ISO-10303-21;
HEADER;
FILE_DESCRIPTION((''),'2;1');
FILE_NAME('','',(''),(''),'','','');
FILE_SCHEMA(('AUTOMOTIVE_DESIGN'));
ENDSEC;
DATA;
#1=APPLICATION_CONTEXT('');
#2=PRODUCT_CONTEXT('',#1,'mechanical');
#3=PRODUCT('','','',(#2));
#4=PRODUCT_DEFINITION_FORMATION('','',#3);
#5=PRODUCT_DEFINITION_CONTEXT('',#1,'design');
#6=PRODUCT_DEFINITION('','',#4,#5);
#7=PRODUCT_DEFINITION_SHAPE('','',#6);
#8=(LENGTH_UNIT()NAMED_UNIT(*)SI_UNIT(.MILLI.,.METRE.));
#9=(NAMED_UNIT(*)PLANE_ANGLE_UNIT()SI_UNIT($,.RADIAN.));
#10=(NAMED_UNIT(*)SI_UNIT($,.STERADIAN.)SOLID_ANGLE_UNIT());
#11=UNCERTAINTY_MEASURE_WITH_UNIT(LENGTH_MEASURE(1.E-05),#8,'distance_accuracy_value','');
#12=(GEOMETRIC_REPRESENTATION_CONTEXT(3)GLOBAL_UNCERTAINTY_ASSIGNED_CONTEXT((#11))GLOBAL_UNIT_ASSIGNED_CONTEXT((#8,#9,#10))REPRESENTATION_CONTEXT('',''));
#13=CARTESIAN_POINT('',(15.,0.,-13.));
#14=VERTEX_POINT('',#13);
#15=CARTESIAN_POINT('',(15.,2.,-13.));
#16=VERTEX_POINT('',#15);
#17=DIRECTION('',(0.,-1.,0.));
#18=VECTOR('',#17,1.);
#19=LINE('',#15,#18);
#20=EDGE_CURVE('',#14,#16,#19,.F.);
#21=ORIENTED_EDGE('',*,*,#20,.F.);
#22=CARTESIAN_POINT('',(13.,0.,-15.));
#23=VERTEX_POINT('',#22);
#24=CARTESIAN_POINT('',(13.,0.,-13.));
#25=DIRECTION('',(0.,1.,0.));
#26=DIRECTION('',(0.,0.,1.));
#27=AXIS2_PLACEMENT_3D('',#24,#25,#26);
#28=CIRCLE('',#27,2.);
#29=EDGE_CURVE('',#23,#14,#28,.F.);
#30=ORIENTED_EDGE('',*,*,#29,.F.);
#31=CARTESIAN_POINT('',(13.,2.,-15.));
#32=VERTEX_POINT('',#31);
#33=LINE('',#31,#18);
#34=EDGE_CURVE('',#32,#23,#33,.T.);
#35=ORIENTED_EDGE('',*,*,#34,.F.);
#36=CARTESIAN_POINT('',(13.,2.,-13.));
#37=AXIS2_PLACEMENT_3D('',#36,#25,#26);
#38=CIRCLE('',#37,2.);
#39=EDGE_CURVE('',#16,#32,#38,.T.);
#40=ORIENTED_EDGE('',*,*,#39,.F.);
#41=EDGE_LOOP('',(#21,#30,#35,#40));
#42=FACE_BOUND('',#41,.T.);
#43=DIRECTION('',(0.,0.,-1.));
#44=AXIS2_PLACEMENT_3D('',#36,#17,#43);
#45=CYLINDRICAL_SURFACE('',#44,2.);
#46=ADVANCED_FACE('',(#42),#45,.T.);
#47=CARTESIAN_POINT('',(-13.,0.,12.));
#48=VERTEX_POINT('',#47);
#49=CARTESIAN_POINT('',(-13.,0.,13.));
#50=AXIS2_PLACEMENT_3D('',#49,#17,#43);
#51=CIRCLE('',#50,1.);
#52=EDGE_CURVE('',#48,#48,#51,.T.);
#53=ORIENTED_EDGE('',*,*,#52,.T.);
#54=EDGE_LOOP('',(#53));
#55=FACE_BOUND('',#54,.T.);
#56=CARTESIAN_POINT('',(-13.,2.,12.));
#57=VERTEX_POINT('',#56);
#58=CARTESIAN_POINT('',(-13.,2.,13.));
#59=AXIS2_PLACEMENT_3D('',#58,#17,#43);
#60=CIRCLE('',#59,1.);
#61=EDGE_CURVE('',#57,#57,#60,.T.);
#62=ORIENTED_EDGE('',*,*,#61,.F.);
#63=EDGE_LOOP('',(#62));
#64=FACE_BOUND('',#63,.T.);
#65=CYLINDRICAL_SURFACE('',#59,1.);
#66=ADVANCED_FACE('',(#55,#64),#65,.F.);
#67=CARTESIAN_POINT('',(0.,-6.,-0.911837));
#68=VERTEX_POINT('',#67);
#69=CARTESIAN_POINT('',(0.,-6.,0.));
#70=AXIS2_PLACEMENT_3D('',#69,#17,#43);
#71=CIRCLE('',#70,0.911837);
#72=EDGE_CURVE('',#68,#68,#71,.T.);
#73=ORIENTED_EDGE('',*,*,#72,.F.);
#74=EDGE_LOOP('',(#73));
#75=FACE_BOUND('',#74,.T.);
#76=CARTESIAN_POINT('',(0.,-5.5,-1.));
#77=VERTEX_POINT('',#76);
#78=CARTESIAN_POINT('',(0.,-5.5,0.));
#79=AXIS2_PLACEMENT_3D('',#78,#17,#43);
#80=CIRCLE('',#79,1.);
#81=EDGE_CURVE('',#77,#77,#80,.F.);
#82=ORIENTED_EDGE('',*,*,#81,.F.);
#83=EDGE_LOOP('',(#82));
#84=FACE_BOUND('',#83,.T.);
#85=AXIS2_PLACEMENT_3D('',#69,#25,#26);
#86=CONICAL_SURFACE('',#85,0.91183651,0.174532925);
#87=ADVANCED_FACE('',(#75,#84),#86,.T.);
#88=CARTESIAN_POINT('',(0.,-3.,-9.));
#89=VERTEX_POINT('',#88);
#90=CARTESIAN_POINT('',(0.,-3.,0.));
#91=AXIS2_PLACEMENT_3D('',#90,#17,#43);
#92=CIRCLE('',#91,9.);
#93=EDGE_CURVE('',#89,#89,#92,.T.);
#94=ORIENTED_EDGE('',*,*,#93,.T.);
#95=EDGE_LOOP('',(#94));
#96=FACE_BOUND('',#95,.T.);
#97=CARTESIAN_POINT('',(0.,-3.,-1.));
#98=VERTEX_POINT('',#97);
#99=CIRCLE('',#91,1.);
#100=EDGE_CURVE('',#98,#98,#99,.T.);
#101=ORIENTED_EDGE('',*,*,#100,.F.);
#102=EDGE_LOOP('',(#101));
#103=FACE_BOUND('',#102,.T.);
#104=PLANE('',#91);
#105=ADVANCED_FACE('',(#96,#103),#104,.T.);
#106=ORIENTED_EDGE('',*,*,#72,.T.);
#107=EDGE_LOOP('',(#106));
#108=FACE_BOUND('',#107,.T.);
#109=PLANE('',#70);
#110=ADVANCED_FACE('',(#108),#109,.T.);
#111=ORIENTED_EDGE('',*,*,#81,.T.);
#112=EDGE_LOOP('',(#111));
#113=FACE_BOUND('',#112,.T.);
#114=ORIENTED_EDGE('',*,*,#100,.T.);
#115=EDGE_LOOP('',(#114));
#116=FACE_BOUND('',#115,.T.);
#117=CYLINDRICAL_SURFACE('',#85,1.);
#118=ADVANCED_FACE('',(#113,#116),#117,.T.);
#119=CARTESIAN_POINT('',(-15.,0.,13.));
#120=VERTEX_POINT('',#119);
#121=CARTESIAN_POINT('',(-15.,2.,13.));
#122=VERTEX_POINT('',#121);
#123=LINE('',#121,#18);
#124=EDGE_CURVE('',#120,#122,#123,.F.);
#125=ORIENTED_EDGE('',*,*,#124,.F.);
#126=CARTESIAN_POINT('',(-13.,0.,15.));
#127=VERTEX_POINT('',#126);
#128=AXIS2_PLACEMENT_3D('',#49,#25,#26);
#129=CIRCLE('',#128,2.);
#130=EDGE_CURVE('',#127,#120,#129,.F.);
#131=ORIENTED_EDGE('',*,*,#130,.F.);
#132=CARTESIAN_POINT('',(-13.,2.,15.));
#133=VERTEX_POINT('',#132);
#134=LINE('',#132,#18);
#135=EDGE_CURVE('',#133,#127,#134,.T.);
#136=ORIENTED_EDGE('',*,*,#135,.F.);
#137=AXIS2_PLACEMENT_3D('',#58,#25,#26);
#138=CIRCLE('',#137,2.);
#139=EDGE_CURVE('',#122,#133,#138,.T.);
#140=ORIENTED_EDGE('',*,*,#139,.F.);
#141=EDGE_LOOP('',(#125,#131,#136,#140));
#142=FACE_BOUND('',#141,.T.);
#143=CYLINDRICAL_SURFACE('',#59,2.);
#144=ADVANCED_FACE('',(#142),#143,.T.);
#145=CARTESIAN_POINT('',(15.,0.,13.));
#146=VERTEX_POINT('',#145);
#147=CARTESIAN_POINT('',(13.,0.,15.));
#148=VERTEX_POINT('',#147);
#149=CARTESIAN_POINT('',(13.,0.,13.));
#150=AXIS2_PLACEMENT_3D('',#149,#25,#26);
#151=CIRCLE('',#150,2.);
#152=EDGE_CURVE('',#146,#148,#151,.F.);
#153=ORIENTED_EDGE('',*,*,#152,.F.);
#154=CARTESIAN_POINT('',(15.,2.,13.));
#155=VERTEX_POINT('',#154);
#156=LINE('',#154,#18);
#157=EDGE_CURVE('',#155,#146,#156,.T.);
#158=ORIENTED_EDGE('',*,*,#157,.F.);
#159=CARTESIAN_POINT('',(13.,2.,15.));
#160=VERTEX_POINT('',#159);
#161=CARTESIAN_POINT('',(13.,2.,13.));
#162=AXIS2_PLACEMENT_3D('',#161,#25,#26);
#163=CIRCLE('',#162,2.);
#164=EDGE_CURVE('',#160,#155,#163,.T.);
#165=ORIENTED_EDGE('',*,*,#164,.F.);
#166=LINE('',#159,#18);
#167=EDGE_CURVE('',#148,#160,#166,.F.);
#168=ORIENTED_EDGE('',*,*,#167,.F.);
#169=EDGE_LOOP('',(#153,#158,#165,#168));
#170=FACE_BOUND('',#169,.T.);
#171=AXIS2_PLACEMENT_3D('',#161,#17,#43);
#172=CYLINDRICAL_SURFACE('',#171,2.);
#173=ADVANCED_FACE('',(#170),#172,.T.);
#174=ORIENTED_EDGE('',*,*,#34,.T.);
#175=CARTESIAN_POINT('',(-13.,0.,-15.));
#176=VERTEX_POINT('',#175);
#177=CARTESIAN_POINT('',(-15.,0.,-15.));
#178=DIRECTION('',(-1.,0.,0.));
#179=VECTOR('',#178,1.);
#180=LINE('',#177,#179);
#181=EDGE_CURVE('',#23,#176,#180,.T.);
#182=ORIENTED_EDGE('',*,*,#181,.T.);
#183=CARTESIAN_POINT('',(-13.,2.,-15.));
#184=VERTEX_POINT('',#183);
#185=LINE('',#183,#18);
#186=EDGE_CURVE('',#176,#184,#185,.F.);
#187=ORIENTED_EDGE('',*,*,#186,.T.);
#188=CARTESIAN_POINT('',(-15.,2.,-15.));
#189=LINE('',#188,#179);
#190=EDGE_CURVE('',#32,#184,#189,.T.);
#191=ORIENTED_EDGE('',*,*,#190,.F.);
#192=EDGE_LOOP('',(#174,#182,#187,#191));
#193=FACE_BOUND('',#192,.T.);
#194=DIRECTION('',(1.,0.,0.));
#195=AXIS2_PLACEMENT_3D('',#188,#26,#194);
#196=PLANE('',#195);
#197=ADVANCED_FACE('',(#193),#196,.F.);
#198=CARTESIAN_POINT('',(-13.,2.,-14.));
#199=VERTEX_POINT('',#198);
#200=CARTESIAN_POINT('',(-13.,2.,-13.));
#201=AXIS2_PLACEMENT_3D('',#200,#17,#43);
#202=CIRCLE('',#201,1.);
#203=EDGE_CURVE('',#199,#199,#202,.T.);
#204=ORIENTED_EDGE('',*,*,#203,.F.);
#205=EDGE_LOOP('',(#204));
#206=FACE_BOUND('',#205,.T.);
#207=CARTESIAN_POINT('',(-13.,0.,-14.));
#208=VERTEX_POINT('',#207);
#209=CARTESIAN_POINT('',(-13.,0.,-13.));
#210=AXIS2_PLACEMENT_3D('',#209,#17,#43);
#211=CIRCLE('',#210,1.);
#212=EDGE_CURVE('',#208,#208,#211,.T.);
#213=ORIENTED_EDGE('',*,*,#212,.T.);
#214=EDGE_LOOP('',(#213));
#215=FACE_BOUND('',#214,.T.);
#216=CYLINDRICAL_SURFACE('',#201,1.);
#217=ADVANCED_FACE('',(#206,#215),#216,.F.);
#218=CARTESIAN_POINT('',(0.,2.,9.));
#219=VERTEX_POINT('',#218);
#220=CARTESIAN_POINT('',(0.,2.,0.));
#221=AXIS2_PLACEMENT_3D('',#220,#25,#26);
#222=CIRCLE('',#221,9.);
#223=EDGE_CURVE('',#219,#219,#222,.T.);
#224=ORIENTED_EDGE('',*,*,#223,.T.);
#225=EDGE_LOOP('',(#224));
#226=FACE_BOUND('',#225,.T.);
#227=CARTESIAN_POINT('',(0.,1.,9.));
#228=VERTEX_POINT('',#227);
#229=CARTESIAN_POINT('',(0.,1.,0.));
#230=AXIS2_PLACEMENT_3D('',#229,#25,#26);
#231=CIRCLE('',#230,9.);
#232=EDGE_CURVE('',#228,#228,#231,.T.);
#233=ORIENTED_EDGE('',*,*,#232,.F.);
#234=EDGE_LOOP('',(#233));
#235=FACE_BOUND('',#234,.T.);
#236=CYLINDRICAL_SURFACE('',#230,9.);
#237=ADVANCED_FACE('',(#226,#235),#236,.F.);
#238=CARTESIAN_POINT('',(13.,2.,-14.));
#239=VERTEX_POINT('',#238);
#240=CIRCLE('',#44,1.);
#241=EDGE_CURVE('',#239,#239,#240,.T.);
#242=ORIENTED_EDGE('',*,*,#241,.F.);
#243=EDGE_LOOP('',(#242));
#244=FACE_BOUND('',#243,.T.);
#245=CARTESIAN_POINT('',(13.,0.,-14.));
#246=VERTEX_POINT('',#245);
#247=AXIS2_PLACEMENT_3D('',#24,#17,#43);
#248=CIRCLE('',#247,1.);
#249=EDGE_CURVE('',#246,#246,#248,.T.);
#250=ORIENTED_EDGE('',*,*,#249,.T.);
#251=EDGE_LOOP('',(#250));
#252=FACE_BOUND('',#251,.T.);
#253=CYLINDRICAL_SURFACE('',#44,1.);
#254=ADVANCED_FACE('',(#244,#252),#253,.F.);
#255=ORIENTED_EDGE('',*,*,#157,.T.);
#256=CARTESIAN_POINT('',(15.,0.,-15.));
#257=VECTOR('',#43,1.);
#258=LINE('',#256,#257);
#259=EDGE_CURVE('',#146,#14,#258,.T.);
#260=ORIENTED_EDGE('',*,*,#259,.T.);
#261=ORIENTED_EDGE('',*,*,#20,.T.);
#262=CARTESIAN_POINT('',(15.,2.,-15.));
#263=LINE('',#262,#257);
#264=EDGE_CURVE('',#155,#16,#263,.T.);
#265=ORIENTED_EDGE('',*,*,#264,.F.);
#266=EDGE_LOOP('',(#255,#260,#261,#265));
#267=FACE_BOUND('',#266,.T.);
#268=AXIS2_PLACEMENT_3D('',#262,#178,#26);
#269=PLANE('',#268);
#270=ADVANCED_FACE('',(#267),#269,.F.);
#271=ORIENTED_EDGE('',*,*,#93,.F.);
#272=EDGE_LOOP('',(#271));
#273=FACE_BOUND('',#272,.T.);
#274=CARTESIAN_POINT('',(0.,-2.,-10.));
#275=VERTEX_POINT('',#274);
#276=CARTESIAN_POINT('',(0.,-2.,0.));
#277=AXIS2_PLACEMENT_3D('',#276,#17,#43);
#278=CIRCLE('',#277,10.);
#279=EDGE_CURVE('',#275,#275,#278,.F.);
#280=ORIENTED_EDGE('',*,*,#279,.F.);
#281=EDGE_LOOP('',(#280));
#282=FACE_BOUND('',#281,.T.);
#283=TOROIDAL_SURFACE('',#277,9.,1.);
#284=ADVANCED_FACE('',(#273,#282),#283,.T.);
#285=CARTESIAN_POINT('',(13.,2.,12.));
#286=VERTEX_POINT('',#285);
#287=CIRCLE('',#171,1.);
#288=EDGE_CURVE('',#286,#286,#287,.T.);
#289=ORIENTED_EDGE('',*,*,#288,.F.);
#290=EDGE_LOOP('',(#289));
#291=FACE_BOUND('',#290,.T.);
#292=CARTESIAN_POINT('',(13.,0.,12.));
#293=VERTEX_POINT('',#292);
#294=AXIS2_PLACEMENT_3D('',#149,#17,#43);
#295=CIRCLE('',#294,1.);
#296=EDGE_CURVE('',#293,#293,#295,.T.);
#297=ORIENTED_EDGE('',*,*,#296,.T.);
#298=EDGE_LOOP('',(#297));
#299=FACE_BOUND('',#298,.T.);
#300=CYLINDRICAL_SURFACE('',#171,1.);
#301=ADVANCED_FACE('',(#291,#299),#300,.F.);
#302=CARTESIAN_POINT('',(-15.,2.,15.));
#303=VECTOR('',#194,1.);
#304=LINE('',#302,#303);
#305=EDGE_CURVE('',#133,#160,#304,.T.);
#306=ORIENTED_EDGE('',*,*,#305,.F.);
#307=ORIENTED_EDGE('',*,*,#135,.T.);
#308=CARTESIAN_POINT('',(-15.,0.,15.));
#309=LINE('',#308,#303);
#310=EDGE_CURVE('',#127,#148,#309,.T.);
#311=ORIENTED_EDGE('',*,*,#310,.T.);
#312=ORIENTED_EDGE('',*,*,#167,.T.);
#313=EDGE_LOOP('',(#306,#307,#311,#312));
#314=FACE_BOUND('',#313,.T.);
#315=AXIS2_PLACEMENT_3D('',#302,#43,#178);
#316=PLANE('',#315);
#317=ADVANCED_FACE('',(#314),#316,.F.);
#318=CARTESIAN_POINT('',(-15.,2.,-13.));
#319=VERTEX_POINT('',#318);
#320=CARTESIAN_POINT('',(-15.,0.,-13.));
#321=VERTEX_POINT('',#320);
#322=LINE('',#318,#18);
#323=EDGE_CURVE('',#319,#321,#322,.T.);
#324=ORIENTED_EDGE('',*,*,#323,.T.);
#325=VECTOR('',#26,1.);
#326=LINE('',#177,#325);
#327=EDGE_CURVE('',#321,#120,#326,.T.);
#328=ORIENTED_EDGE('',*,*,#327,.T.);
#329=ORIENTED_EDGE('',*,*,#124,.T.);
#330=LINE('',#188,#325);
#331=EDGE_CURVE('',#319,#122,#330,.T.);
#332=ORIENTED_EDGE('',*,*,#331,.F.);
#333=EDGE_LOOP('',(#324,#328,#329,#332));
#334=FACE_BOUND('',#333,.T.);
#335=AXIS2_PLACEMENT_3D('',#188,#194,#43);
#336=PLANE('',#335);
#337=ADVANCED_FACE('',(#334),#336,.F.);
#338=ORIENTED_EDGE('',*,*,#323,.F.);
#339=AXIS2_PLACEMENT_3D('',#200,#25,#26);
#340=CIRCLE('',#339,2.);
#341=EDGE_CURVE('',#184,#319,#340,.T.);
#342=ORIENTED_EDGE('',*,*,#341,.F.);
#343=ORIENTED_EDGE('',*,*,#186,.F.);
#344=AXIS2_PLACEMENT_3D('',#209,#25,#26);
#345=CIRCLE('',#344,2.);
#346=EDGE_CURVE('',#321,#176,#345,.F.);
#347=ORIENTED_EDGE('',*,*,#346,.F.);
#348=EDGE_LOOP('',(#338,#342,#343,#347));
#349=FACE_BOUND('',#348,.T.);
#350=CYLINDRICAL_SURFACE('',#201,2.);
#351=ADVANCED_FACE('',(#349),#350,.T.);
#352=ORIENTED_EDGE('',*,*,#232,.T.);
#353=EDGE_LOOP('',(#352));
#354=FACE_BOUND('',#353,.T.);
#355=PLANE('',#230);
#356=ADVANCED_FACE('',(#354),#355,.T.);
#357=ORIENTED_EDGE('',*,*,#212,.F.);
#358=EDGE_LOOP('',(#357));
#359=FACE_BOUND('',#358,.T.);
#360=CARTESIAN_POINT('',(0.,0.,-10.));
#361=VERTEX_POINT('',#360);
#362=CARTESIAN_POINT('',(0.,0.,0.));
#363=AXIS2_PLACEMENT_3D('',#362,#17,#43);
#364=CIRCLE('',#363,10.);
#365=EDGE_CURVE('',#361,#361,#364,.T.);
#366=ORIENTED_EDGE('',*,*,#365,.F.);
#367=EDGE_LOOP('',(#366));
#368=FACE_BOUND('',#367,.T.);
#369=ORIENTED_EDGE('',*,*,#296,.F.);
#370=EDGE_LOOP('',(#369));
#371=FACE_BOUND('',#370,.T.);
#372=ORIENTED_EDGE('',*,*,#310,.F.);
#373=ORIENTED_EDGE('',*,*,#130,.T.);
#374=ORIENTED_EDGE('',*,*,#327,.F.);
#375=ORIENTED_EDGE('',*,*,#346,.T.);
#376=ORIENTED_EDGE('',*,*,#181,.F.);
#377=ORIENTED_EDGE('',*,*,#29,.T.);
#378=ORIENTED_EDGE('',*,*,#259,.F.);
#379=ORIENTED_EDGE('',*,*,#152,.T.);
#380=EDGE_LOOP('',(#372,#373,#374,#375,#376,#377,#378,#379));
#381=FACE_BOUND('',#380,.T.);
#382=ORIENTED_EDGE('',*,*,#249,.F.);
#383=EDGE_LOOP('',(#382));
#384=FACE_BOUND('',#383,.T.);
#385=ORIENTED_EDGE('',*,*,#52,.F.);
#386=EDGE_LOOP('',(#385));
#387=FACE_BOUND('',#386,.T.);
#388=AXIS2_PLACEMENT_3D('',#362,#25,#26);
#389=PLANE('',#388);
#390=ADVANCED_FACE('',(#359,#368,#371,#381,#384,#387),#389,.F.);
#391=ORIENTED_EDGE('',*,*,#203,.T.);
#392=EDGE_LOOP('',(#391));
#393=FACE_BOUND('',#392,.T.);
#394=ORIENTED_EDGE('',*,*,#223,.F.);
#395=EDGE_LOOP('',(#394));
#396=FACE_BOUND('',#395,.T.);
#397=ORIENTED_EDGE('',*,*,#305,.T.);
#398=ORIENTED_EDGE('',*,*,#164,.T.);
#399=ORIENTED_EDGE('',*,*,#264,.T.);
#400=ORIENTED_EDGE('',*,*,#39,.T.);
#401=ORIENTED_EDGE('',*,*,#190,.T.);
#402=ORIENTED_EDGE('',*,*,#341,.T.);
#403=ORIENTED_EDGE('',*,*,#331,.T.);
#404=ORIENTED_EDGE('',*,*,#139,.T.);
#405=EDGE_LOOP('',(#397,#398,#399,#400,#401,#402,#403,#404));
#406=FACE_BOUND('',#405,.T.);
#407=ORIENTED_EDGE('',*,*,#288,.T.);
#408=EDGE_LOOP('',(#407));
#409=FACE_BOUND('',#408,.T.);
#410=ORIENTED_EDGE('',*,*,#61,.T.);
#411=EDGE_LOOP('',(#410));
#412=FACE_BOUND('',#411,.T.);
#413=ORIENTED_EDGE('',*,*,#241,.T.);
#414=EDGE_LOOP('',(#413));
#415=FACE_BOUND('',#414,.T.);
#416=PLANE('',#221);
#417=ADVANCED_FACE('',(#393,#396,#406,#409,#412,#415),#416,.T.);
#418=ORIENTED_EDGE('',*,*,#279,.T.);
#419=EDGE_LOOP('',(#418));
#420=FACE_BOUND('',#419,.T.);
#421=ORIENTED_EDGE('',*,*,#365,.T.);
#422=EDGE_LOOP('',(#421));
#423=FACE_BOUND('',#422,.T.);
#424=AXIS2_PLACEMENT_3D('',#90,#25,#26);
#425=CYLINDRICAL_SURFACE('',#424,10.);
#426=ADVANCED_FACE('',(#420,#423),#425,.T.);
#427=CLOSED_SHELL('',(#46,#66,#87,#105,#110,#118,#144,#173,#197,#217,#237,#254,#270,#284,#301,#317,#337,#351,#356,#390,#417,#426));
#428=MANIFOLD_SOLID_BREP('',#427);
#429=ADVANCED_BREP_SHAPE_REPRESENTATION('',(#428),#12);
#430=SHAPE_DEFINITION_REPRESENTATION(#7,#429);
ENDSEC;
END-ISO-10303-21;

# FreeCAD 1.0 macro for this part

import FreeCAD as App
import Part
import Sketcher

V = App.Vector


def edges_at(feature, points):
    """Names of the edges that pass closest to the given points."""
    edges = feature.Shape.Edges
    near = lambda p: min(range(len(edges)), key=lambda i: edges[i].distToShape(Part.Vertex(*p))[0])
    return sorted({f"Edge{near(p) + 1}" for p in points})


def add_polygon(sketch, points):
    """Adds a closed chain of lines whose ends are joined by coincident constraints."""
    first, n = sketch.GeometryCount, len(points)
    for a, b in zip(points, points[1:] + points[:1]):
        sketch.addGeometry(Part.LineSegment(App.Vector(*a, 0), App.Vector(*b, 0)), False)
    for i in range(n):
        sketch.addConstraint(Sketcher.Constraint("Coincident", first + i, 2, first + (i + 1) % n, 1))

doc = App.newDocument("Part")
body = doc.addObject("PartDesign::Body", "Body")

# Sketch on XZ plane
sketch1 = body.newObject("Sketcher::SketchObject", "Sketch")
sketch1.AttachmentSupport = (doc.getObject("XZ_Plane"), [""])
sketch1.MapMode = "FlatFace"
add_polygon(sketch1, [(-15, -15), (-15, 15), (15, 15), (15, -15)])  # lines 0-3
sketch1.addConstraint([
    Sketcher.Constraint("Vertical", 0),
    Sketcher.Constraint("Horizontal", 1),
    Sketcher.Constraint("Vertical", 2),
    Sketcher.Constraint("Horizontal", 3),
    Sketcher.Constraint("Symmetric", 0, 2, 2, 2, -1, 1),
    Sketcher.Constraint("Equal", 3, 0),
    Sketcher.Constraint("DistanceX", 1, 1, 1, 2, 30.0),
])
pad1 = body.newObject("PartDesign::Pad", "Pad")
pad1.Profile = sketch1
pad1.Length = 2
pad1.Reversed = True

# Sketch on XZ plane
sketch2 = body.newObject("Sketcher::SketchObject", "Sketch001")
sketch2.AttachmentSupport = (doc.getObject("XZ_Plane"), [""])
sketch2.MapMode = "FlatFace"
sketch2.AttachmentOffset = App.Placement(V(0, 0, -2), App.Rotation())
sketch2.addGeometry(Part.Circle(V(0, 0, 0), V(0, 0, 1), 9), False)
sketch2.addConstraint([
    Sketcher.Constraint("Coincident", 0, 3, -1, 1),
    Sketcher.Constraint("Diameter", 0, 18.0),
])
pocket1 = body.newObject("PartDesign::Pocket", "Pocket")
pocket1.Profile = sketch2
pocket1.Length = 1
pocket1.Reversed = True

# Sketch on XZ plane
sketch3 = body.newObject("Sketcher::SketchObject", "Sketch002")
sketch3.AttachmentSupport = (doc.getObject("XZ_Plane"), [""])
sketch3.MapMode = "FlatFace"
sketch3.addGeometry(Part.Circle(V(0, 0, 0), V(0, 0, 1), 10), False)
sketch3.addConstraint([
    Sketcher.Constraint("Coincident", 0, 3, -1, 1),
    Sketcher.Constraint("Diameter", 0, 20.0),
])
pad2 = body.newObject("PartDesign::Pad", "Pad001")
pad2.Profile = sketch3
pad2.Length = 3

# Sketch on XZ plane
sketch4 = body.newObject("Sketcher::SketchObject", "Sketch003")
sketch4.AttachmentSupport = (doc.getObject("XZ_Plane"), [""])
sketch4.MapMode = "FlatFace"
sketch4.AttachmentOffset = App.Placement(V(0, 0, 3), App.Rotation())
sketch4.addGeometry(Part.Circle(V(0, 0, 0), V(0, 0, 1), 1), False)
sketch4.addConstraint([
    Sketcher.Constraint("Coincident", 0, 3, -1, 1),
    Sketcher.Constraint("Diameter", 0, 2.0),
])
pad3 = body.newObject("PartDesign::Pad", "Pad002")
pad3.Profile = sketch4
pad3.Length = 3
doc.recompute()

fillet = body.newObject("PartDesign::Fillet", "Fillet")
fillet.Base = (pad3, edges_at(pad3, [(-10, -3, 0)]))
fillet.Radius = 1
doc.recompute()

chamfer = body.newObject("PartDesign::Chamfer", "Chamfer")
chamfer.Base = (fillet, edges_at(fillet, [(-1, -6, 0)]))
chamfer.ChamferType = "Two distances"
chamfer.Size = 0.5
chamfer.Size2 = 0.088163

# Sketch on XZ plane
sketch5 = body.newObject("Sketcher::SketchObject", "Sketch004")
sketch5.AttachmentSupport = (doc.getObject("XZ_Plane"), [""])
sketch5.MapMode = "FlatFace"
sketch5.addGeometry([
    Part.Circle(V(-13, 13, 0), V(0, 0, 1), 1),
    Part.Circle(V(13, 13, 0), V(0, 0, 1), 1),
    Part.Circle(V(13, -13, 0), V(0, 0, 1), 1),
    Part.Circle(V(-13, -13, 0), V(0, 0, 1), 1),
], False)
sketch5.addConstraint([
    Sketcher.Constraint("Equal", 0, 1),
    Sketcher.Constraint("Equal", 1, 2),
    Sketcher.Constraint("Equal", 2, 3),
    Sketcher.Constraint("Symmetric", 0, 3, 2, 3, -1, 1),
    Sketcher.Constraint("Symmetric", 1, 3, 3, 3, -1, 1),
    Sketcher.Constraint("Symmetric", 0, 3, 1, 3, -2),
    Sketcher.Constraint("Diameter", 0, 2.0),
    Sketcher.Constraint("DistanceX", 0, 3, -1, 1, 13.0),
    Sketcher.Constraint("DistanceY", -1, 1, 0, 3, 13.0),
])
pocket2 = body.newObject("PartDesign::Pocket", "Pocket001")
pocket2.Profile = sketch5
pocket2.Type = "ThroughAll"
doc.recompute()

fillet2 = body.newObject("PartDesign::Fillet", "Fillet001")
fillet2.Base = (pocket2, edges_at(pocket2, [
    (15, 1, 15),
    (-15, 1, 15),
    (-15, 1, -15),
    (15, 1, -15),
]))
fillet2.Radius = 2

doc.recompute()
